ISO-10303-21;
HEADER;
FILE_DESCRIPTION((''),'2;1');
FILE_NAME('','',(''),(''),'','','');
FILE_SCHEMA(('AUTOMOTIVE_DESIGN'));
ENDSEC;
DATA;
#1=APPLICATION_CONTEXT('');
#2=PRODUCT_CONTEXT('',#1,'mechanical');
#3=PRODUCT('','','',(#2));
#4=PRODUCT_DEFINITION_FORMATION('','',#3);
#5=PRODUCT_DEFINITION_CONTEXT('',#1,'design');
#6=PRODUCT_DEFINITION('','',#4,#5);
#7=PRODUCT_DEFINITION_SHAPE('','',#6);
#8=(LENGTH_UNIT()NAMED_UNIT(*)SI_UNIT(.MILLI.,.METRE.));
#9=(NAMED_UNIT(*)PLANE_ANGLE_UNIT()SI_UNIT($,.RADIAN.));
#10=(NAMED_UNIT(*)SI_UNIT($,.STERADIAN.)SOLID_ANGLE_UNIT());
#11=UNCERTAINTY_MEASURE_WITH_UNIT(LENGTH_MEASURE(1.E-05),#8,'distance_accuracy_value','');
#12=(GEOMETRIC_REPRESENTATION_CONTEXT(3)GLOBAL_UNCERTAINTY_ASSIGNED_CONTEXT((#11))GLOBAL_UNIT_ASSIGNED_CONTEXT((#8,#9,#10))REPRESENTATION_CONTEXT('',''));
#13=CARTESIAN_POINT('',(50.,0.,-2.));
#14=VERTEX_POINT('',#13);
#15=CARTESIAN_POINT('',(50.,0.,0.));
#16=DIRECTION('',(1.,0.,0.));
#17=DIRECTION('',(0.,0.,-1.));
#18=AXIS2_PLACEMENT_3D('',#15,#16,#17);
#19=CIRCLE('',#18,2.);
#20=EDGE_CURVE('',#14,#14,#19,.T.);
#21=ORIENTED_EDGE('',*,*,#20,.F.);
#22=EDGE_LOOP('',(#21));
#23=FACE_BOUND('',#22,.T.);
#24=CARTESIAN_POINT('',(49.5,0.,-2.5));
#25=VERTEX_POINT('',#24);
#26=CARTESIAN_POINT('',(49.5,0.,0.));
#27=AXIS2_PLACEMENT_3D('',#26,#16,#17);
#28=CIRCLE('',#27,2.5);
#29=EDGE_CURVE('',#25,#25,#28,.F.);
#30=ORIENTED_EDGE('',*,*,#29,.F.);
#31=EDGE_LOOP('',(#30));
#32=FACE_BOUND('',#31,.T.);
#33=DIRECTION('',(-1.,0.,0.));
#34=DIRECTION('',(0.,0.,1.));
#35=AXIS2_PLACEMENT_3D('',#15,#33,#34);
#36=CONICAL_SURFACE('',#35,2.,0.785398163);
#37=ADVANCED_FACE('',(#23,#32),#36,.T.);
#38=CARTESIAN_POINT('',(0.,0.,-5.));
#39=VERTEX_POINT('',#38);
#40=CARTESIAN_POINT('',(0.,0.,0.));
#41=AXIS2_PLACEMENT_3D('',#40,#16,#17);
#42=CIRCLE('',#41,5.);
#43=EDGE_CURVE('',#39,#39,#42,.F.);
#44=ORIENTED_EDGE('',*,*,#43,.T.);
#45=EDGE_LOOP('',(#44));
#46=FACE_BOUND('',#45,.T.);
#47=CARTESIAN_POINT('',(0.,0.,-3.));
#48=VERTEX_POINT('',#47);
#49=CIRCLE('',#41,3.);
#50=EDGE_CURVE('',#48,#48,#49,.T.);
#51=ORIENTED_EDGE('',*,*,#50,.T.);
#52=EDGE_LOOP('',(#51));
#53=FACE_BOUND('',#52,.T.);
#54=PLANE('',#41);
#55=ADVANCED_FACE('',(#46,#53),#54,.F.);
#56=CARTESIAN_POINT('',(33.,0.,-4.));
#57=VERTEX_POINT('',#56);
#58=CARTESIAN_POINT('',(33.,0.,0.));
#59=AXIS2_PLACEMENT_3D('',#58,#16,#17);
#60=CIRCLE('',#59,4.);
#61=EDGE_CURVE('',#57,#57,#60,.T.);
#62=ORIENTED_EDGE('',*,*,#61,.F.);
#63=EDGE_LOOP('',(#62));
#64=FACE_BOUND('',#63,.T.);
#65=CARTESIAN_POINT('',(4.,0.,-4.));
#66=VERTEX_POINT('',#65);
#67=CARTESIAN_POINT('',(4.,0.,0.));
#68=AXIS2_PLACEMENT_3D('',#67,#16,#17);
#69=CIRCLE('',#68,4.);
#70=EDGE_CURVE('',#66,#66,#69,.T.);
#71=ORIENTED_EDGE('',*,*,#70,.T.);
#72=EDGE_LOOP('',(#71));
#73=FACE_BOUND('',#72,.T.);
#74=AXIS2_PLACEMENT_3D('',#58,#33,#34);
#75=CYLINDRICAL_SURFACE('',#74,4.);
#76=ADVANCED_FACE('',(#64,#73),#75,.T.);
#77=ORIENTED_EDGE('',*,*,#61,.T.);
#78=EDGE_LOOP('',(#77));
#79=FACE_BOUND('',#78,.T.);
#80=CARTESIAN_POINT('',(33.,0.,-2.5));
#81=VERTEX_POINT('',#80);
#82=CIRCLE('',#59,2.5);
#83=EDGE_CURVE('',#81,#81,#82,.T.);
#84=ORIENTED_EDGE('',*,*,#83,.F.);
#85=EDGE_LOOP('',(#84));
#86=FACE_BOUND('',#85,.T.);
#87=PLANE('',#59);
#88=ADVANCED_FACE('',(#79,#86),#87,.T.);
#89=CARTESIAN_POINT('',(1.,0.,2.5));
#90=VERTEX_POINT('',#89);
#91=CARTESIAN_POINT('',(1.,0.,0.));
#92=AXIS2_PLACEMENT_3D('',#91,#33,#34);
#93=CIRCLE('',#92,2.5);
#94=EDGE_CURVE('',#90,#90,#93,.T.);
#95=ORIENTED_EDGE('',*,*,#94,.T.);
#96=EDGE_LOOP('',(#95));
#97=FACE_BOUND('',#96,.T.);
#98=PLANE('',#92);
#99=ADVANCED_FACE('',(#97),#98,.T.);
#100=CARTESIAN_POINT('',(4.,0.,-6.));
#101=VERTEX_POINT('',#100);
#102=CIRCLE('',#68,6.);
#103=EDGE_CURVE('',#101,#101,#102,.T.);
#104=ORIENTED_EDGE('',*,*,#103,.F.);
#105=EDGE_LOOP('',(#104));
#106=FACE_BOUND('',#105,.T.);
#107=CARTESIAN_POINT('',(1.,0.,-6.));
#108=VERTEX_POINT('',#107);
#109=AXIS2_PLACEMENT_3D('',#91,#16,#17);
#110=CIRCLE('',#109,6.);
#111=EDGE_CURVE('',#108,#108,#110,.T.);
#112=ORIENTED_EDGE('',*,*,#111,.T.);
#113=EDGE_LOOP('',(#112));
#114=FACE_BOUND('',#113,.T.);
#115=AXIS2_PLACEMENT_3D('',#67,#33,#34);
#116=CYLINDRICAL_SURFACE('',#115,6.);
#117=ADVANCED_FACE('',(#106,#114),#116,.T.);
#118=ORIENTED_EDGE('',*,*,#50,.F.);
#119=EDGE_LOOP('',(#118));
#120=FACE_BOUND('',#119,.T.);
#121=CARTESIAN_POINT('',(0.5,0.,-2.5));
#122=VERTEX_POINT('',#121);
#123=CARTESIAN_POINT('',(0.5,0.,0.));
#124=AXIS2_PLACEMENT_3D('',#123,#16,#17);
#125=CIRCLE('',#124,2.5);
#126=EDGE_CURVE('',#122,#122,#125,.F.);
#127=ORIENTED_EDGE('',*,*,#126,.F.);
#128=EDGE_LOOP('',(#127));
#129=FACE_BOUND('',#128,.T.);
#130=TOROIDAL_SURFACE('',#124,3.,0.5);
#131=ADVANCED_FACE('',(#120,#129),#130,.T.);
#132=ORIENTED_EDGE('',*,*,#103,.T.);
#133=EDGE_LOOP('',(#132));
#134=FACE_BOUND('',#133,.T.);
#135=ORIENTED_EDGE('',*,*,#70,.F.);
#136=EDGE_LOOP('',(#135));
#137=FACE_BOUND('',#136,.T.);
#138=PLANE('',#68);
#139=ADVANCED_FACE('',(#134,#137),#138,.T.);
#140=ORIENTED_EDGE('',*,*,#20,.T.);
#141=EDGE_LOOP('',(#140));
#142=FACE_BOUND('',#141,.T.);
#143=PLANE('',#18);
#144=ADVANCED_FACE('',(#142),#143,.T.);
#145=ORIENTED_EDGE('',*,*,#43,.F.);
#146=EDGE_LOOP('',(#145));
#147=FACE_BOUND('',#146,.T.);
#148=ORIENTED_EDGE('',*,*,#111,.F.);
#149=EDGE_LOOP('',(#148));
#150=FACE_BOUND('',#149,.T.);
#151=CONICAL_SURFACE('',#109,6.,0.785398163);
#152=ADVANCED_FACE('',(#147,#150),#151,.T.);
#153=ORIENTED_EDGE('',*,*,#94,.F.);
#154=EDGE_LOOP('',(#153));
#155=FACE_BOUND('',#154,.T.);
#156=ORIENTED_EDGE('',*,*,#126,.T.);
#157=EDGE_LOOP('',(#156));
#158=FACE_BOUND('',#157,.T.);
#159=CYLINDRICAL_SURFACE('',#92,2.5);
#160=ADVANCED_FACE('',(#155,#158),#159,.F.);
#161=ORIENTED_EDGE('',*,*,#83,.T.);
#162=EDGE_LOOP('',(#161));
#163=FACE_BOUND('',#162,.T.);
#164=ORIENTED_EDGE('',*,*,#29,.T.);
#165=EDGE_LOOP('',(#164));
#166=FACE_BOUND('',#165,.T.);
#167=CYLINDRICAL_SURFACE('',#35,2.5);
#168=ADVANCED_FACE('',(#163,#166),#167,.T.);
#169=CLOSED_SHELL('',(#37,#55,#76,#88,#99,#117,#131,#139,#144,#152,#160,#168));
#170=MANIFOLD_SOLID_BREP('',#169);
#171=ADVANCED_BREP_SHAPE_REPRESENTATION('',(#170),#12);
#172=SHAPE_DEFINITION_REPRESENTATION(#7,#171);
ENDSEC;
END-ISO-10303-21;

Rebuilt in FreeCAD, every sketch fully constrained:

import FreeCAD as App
import Part
import Sketcher

V = App.Vector
Q = App.Units.Quantity


def edges_at(feature, points):
    """Names of the edges that pass closest to the given points."""
    edges = feature.Shape.Edges
    near = lambda p: min(range(len(edges)), key=lambda i: edges[i].distToShape(Part.Vertex(*p))[0])
    return sorted({f"Edge{near(p) + 1}" for p in points})

doc = App.newDocument("Part")
body = doc.addObject("PartDesign::Body", "Body")

# Sketch on YZ plane
sketch1 = doc.addObject("Sketcher::SketchObject", "Sketch")
body.addObject(sketch1)
sketch1.AttachmentSupport = (doc.YZ_Plane, [""])
sketch1.MapMode = "FlatFace"
sketch1.addGeometry(Part.Circle(V(0, 0, 0), V(0, 0, 1), 6), False)
sketch1.addConstraint([
    Sketcher.Constraint("Coincident", 0, 3, -1, 1),
    Sketcher.Constraint("Diameter", 0, Q("12 mm")),
])
pad1 = doc.addObject("PartDesign::Pad", "Pad")
body.addObject(pad1)
pad1.Profile = sketch1
pad1.Length = 4

# Sketch on YZ plane
sketch2 = doc.addObject("Sketcher::SketchObject", "Sketch001")
body.addObject(sketch2)
sketch2.AttachmentSupport = (doc.YZ_Plane, [""])
sketch2.MapMode = "FlatFace"
sketch2.AttachmentOffset = App.Placement(V(0, 0, 4), App.Rotation())
sketch2.addGeometry(Part.Circle(V(0, 0, 0), V(0, 0, 1), 4), False)
sketch2.addConstraint([
    Sketcher.Constraint("Coincident", 0, 3, -1, 1),
    Sketcher.Constraint("Diameter", 0, Q("8 mm")),
])
pad2 = doc.addObject("PartDesign::Pad", "Pad001")
body.addObject(pad2)
pad2.Profile = sketch2
pad2.Length = 29

# Sketch on YZ plane
sketch3 = doc.addObject("Sketcher::SketchObject", "Sketch002")
body.addObject(sketch3)
sketch3.AttachmentSupport = (doc.YZ_Plane, [""])
sketch3.MapMode = "FlatFace"
sketch3.AttachmentOffset = App.Placement(V(0, 0, 33), App.Rotation())
sketch3.addGeometry(Part.Circle(V(0, 0, 0), V(0, 0, 1), 2.5), False)
sketch3.addConstraint([
    Sketcher.Constraint("Coincident", 0, 3, -1, 1),
    Sketcher.Constraint("Diameter", 0, Q("5 mm")),
])
pad3 = doc.addObject("PartDesign::Pad", "Pad002")
body.addObject(pad3)
pad3.Profile = sketch3
pad3.Length = 17
doc.recompute()

chamfer = doc.addObject("PartDesign::Chamfer", "Chamfer")
body.addObject(chamfer)
chamfer.Base = (pad3, edges_at(pad3, [(50, 0, 2.5)]))
chamfer.Size = 0.5
doc.recompute()

chamfer2 = doc.addObject("PartDesign::Chamfer", "Chamfer001")
body.addObject(chamfer2)
chamfer2.Base = (chamfer, edges_at(chamfer, [(0, 0, 6)]))
chamfer2.Size = 1

# Sketch on YZ plane
sketch4 = doc.addObject("Sketcher::SketchObject", "Sketch003")
body.addObject(sketch4)
sketch4.AttachmentSupport = (doc.YZ_Plane, [""])
sketch4.MapMode = "FlatFace"
sketch4.addGeometry(Part.Circle(V(0, 0, 0), V(0, 0, 1), 2.5), False)
sketch4.addConstraint([
    Sketcher.Constraint("Coincident", 0, 3, -1, 1),
    Sketcher.Constraint("Diameter", 0, Q("5 mm")),
])
pocket1 = doc.addObject("PartDesign::Pocket", "Pocket")
body.addObject(pocket1)
pocket1.Profile = sketch4
pocket1.Length = 1
pocket1.Reversed = True
doc.recompute()

fillet = doc.addObject("PartDesign::Fillet", "Fillet")
body.addObject(fillet)
fillet.Base = (pocket1, edges_at(pocket1, [(0, 0, -2.5)]))
fillet.Radius = 0.5

doc.recompute()
